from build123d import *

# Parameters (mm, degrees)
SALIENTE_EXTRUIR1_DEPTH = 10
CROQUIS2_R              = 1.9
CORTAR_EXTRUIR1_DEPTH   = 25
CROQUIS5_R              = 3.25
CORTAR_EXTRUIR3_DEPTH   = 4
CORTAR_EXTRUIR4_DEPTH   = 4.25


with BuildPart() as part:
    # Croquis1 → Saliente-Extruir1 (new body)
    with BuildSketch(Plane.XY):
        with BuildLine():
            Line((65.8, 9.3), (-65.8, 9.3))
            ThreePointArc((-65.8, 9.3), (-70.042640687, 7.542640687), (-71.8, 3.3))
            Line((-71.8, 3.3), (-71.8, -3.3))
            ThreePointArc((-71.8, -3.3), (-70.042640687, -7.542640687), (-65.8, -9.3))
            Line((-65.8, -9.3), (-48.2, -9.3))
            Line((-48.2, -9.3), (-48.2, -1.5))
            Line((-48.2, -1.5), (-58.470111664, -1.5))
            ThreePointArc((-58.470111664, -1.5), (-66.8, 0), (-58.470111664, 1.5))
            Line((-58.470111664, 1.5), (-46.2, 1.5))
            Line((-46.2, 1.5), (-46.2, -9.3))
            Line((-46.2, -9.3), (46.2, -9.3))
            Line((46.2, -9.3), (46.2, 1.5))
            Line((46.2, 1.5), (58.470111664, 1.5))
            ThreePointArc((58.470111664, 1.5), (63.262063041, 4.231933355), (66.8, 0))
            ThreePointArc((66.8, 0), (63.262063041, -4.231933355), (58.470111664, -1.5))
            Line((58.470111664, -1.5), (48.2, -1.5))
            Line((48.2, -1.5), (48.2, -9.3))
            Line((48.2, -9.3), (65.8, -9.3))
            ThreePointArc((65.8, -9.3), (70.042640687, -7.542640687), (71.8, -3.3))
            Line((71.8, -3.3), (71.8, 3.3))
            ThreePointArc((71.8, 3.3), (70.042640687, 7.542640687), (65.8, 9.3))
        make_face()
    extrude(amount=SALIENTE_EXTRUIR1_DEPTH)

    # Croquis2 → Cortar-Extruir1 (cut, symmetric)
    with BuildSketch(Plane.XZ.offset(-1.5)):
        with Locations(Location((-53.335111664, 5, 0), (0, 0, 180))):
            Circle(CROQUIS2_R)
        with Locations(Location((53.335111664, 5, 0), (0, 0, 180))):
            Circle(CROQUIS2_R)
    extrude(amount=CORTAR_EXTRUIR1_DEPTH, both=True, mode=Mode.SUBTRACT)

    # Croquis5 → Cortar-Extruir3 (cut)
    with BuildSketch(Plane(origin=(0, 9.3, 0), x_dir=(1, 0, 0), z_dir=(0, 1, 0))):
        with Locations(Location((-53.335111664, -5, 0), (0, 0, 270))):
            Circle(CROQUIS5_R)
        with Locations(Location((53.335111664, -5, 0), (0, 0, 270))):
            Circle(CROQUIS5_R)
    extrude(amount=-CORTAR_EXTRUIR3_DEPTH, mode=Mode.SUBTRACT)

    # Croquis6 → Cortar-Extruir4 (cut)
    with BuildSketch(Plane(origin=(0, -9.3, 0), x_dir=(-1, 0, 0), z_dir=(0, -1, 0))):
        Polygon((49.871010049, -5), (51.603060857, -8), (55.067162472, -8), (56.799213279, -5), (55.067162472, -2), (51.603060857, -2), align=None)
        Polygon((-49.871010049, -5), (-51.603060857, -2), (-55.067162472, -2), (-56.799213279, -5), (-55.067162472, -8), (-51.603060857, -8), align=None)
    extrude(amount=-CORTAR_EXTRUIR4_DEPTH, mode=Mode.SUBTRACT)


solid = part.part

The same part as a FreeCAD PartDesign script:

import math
import FreeCAD as App
import Part
import Sketcher
Q = App.Units.Quantity


def add_polygon(sketch, points):
    """Adds a closed chain of lines whose ends are joined by coincident constraints."""
    first, n = sketch.GeometryCount, len(points)
    for a, b in zip(points, points[1:] + points[:1]):
        sketch.addGeometry(Part.LineSegment(App.Vector(*a, 0), App.Vector(*b, 0)), False)
    for i in range(n):
        sketch.addConstraint(Sketcher.Constraint("Coincident", first + i, 2, first + (i + 1) % n, 1))

doc = App.newDocument("Part")
body = doc.addObject("PartDesign::Body", "Body")

sketch1 = body.newObject("Sketcher::SketchObject", "Sketch")
sketch1.AttachmentSupport = (doc.getObject("XY_Plane"), [""])
sketch1.MapMode = "FlatFace"
sketch1.addGeometry([
    Part.LineSegment(App.Vector(65.8, 9.3, 0), App.Vector(-65.8, 9.3, 0)),
    Part.ArcOfCircle(Part.Circle(App.Vector(-65.8, 3.3, 0), App.Vector(0, 0, 1), 6), math.radians(90), math.radians(180)),
    Part.LineSegment(App.Vector(-71.8, 3.3, 0), App.Vector(-71.8, -3.3, 0)),
    Part.ArcOfCircle(Part.Circle(App.Vector(-65.8, -3.3, 0), App.Vector(0, 0, 1), 6), math.radians(180), math.radians(270)),
    Part.LineSegment(App.Vector(-65.8, -9.3, 0), App.Vector(-48.2, -9.3, 0)),
    Part.LineSegment(App.Vector(-48.2, -9.3, 0), App.Vector(-48.2, -1.5, 0)),
    Part.LineSegment(App.Vector(-48.2, -1.5, 0), App.Vector(-58.5, -1.5, 0)),
    Part.ArcOfCircle(Part.Circle(App.Vector(-62.5, 0, 0), App.Vector(0, 0, 1), 4.3), math.radians(20), math.radians(340)),
    Part.LineSegment(App.Vector(-58.5, 1.5, 0), App.Vector(-46.2, 1.5, 0)),
    Part.LineSegment(App.Vector(-46.2, 1.5, 0), App.Vector(-46.2, -9.3, 0)),
    Part.LineSegment(App.Vector(-46.2, -9.3, 0), App.Vector(46.2, -9.3, 0)),
    Part.LineSegment(App.Vector(46.2, -9.3, 0), App.Vector(46.2, 1.5, 0)),
    Part.LineSegment(App.Vector(46.2, 1.5, 0), App.Vector(58.5, 1.5, 0)),
    Part.ArcOfCircle(Part.Circle(App.Vector(62.5, 0, 0), App.Vector(0, 0, 1), 4.3), math.radians(0), math.radians(160)),
    Part.ArcOfCircle(Part.Circle(App.Vector(62.5, 0, 0), App.Vector(0, 0, 1), 4.3), math.radians(-160), math.radians(0)),
    Part.LineSegment(App.Vector(58.5, -1.5, 0), App.Vector(48.2, -1.5, 0)),
    Part.LineSegment(App.Vector(48.2, -1.5, 0), App.Vector(48.2, -9.3, 0)),
    Part.LineSegment(App.Vector(48.2, -9.3, 0), App.Vector(65.8, -9.3, 0)),
    Part.ArcOfCircle(Part.Circle(App.Vector(65.8, -3.3, 0), App.Vector(0, 0, 1), 6), math.radians(-90), math.radians(0)),
    Part.LineSegment(App.Vector(71.8, -3.3, 0), App.Vector(71.8, 3.3, 0)),
    Part.ArcOfCircle(Part.Circle(App.Vector(65.8, 3.3, 0), App.Vector(0, 0, 1), 6), math.radians(0), math.radians(90)),
], False)
sketch1.addConstraint([
    Sketcher.Constraint("Tangent", 0, 2, 1, 1),
    Sketcher.Constraint("Tangent", 1, 2, 2, 1),
    Sketcher.Constraint("Tangent", 2, 2, 3, 1),
    Sketcher.Constraint("Tangent", 3, 2, 4, 1),
    Sketcher.Constraint("Coincident", 4, 2, 5, 1),
    Sketcher.Constraint("Coincident", 5, 2, 6, 1),
    Sketcher.Constraint("Coincident", 6, 2, 7, 2),
    Sketcher.Constraint("Coincident", 7, 1, 8, 1),
    Sketcher.Constraint("Coincident", 8, 2, 9, 1),
    Sketcher.Constraint("Coincident", 9, 2, 10, 1),
    Sketcher.Constraint("Coincident", 10, 2, 11, 1),
    Sketcher.Constraint("Coincident", 11, 2, 12, 1),
    Sketcher.Constraint("Coincident", 12, 2, 13, 2),
    Sketcher.Constraint("Tangent", 13, 1, 14, 2),
    Sketcher.Constraint("Coincident", 14, 1, 15, 1),
    Sketcher.Constraint("Coincident", 15, 2, 16, 1),
    Sketcher.Constraint("Coincident", 16, 2, 17, 1),
    Sketcher.Constraint("Tangent", 17, 2, 18, 1),
    Sketcher.Constraint("Tangent", 18, 2, 19, 1),
    Sketcher.Constraint("Tangent", 19, 2, 20, 1),
    Sketcher.Constraint("Tangent", 20, 2, 0, 1),
    Sketcher.Constraint("Horizontal", 0),
    Sketcher.Constraint("Vertical", 2),
    Sketcher.Constraint("Horizontal", 4),
    Sketcher.Constraint("Vertical", 5),
    Sketcher.Constraint("Horizontal", 6),
    Sketcher.Constraint("Horizontal", 8),
    Sketcher.Constraint("Vertical", 9),
    Sketcher.Constraint("Horizontal", 10),
    Sketcher.Constraint("Vertical", 11),
    Sketcher.Constraint("Horizontal", 12),
    Sketcher.Constraint("Horizontal", 15),
    Sketcher.Constraint("Vertical", 16),
    Sketcher.Constraint("Horizontal", 17),
    Sketcher.Constraint("Vertical", 19),
    Sketcher.Constraint("Equal", 1, 3),
    Sketcher.Constraint("Equal", 7, 13),
    Sketcher.Constraint("Equal", 13, 14),
    Sketcher.Constraint("Equal", 3, 18),
    Sketcher.Constraint("Equal", 18, 20),
    Sketcher.Constraint("Symmetric", 7, 3, 13, 3, -1, 1),
    Sketcher.Constraint("Symmetric", 1, 3, 18, 3, -1, 1),
    Sketcher.Constraint("Symmetric", 8, 2, 11, 2, -2),
    Sketcher.Constraint("Symmetric", 6, 2, 14, 1, -2),
    Sketcher.Constraint("Symmetric", 4, 2, 16, 2, -2),
    Sketcher.Constraint("PointOnObject", 13, 1, -1),
    Sketcher.Constraint("Horizontal", 4, 2, 9, 2),
    Sketcher.Constraint("Vertical", 6, 2, 7, 1),
    Sketcher.Constraint("Radius", 1, Q("6 mm")),
    Sketcher.Constraint("Radius", 7, Q("4.3 mm")),
    Sketcher.Constraint("DistanceX", 0, 2, 0, 1, Q("131.6 mm")),
    Sketcher.Constraint("DistanceX", 4, 1, 4, 2, Q("17.6 mm")),
    Sketcher.Constraint("DistanceX", 10, 1, 10, 2, Q("92.4 mm")),
    Sketcher.Constraint("DistanceY", 2, 2, 2, 1, Q("6.6 mm")),
    Sketcher.Constraint("DistanceY", 5, 1, 5, 2, Q("7.8 mm")),
    Sketcher.Constraint("DistanceX", 7, 3, 13, 3, Q("125 mm")),
])
pad1 = body.newObject("PartDesign::Pad", "Pad")
pad1.Profile = sketch1
pad1.Length = 10

sketch2 = body.newObject("Sketcher::SketchObject", "Sketch001")
sketch2.AttachmentSupport = (doc.getObject("XZ_Plane"), [""])
sketch2.MapMode = "FlatFace"
sketch2.AttachmentOffset = App.Placement(App.Vector(0, 0, -1.5), App.Rotation())
sketch2.addGeometry([
    Part.Circle(App.Vector(-53.3, 5, 0), App.Vector(0, 0, 1), 1.9),
    Part.Circle(App.Vector(53.3, 5, 0), App.Vector(0, 0, 1), 1.9),
], False)
sketch2.addConstraint([
    Sketcher.Constraint("Equal", 0, 1),
    Sketcher.Constraint("Symmetric", 0, 3, 1, 3, -2),
    Sketcher.Constraint("Diameter", 0, Q("3.8 mm")),
    Sketcher.Constraint("DistanceY", -1, 1, 0, 3, Q("5 mm")),
    Sketcher.Constraint("DistanceX", 0, 3, -1, 1, Q("53.335112 mm")),
])
pocket1 = body.newObject("PartDesign::Pocket", "Pocket")
pocket1.Profile = sketch2
pocket1.Length = 50
pocket1.Midplane = True

sketch3 = body.newObject("Sketcher::SketchObject", "Sketch002")
sketch3.AttachmentSupport = (doc.getObject("XZ_Plane"), [""])
sketch3.MapMode = "FlatFace"
sketch3.AttachmentOffset = App.Placement(App.Vector(0, 0, -9.3), App.Rotation())
sketch3.addGeometry([
    Part.Circle(App.Vector(-53.3, 5, 0), App.Vector(0, 0, 1), 3.2),
    Part.Circle(App.Vector(53.3, 5, 0), App.Vector(0, 0, 1), 3.2),
], False)
sketch3.addConstraint([
    Sketcher.Constraint("Equal", 0, 1),
    Sketcher.Constraint("Symmetric", 0, 3, 1, 3, -2),
    Sketcher.Constraint("Diameter", 0, Q("6.5 mm")),
    Sketcher.Constraint("DistanceY", -1, 1, 0, 3, Q("5 mm")),
    Sketcher.Constraint("DistanceX", 0, 3, -1, 1, Q("53.335112 mm")),
])
pocket2 = body.newObject("PartDesign::Pocket", "Pocket001")
pocket2.Profile = sketch3
pocket2.Length = 4
pocket2.Reversed = True

sketch4 = body.newObject("Sketcher::SketchObject", "Sketch003")
sketch4.AttachmentSupport = (doc.getObject("XZ_Plane"), [""])
sketch4.MapMode = "FlatFace"
sketch4.AttachmentOffset = App.Placement(App.Vector(0, 0, 9.3), App.Rotation())
add_polygon(sketch4, [(-49.9, 5), (-51.6, 8), (-55.1, 8), (-56.8, 5), (-55.1, 2), (-51.6, 2)])
add_polygon(sketch4, [(49.9, 5), (51.6, 2), (55.1, 2), (56.8, 5), (55.1, 8), (51.6, 8)])
sketch4.addConstraint([
    Sketcher.Constraint("Horizontal", 1),
    Sketcher.Constraint("Horizontal", 4),
    Sketcher.Constraint("Horizontal", 7),
    Sketcher.Constraint("Horizontal", 10),
    Sketcher.Constraint("Symmetric", 4, 2, 6, 2, -2),
    Sketcher.Constraint("Symmetric", 2, 2, 8, 2, -2),
    Sketcher.Constraint("Symmetric", 1, 2, 9, 2, -2),
    Sketcher.Constraint("Symmetric", 5, 2, 11, 2, -2),
    Sketcher.Constraint("Parallel", 0, 3),
    Sketcher.Constraint("Parallel", 2, 5),
    Sketcher.Constraint("Parallel", 3, 6),
    Sketcher.Constraint("Parallel", 5, 8),
    Sketcher.Constraint("Parallel", 8, 11),
    Sketcher.Constraint("Horizontal", 2, 2, 5, 2),
    Sketcher.Constraint("Vertical", 1, 2, 3, 2),
    Sketcher.Constraint("Angle", 0, Q("120 deg")),
    Sketcher.Constraint("DistanceY", -1, 1, 0, 2, Q("8 mm")),
    Sketcher.Constraint("DistanceY", -1, 1, 2, 2, Q("5 mm")),
    Sketcher.Constraint("DistanceX", 1, 2, 1, 1, Q("3.464102 mm")),
    Sketcher.Constraint("DistanceX", 0, 2, -1, 1, Q("51.603061 mm")),
])
pocket3 = body.newObject("PartDesign::Pocket", "Pocket002")
pocket3.Profile = sketch4
pocket3.Length = 4.25

doc.recompute()
